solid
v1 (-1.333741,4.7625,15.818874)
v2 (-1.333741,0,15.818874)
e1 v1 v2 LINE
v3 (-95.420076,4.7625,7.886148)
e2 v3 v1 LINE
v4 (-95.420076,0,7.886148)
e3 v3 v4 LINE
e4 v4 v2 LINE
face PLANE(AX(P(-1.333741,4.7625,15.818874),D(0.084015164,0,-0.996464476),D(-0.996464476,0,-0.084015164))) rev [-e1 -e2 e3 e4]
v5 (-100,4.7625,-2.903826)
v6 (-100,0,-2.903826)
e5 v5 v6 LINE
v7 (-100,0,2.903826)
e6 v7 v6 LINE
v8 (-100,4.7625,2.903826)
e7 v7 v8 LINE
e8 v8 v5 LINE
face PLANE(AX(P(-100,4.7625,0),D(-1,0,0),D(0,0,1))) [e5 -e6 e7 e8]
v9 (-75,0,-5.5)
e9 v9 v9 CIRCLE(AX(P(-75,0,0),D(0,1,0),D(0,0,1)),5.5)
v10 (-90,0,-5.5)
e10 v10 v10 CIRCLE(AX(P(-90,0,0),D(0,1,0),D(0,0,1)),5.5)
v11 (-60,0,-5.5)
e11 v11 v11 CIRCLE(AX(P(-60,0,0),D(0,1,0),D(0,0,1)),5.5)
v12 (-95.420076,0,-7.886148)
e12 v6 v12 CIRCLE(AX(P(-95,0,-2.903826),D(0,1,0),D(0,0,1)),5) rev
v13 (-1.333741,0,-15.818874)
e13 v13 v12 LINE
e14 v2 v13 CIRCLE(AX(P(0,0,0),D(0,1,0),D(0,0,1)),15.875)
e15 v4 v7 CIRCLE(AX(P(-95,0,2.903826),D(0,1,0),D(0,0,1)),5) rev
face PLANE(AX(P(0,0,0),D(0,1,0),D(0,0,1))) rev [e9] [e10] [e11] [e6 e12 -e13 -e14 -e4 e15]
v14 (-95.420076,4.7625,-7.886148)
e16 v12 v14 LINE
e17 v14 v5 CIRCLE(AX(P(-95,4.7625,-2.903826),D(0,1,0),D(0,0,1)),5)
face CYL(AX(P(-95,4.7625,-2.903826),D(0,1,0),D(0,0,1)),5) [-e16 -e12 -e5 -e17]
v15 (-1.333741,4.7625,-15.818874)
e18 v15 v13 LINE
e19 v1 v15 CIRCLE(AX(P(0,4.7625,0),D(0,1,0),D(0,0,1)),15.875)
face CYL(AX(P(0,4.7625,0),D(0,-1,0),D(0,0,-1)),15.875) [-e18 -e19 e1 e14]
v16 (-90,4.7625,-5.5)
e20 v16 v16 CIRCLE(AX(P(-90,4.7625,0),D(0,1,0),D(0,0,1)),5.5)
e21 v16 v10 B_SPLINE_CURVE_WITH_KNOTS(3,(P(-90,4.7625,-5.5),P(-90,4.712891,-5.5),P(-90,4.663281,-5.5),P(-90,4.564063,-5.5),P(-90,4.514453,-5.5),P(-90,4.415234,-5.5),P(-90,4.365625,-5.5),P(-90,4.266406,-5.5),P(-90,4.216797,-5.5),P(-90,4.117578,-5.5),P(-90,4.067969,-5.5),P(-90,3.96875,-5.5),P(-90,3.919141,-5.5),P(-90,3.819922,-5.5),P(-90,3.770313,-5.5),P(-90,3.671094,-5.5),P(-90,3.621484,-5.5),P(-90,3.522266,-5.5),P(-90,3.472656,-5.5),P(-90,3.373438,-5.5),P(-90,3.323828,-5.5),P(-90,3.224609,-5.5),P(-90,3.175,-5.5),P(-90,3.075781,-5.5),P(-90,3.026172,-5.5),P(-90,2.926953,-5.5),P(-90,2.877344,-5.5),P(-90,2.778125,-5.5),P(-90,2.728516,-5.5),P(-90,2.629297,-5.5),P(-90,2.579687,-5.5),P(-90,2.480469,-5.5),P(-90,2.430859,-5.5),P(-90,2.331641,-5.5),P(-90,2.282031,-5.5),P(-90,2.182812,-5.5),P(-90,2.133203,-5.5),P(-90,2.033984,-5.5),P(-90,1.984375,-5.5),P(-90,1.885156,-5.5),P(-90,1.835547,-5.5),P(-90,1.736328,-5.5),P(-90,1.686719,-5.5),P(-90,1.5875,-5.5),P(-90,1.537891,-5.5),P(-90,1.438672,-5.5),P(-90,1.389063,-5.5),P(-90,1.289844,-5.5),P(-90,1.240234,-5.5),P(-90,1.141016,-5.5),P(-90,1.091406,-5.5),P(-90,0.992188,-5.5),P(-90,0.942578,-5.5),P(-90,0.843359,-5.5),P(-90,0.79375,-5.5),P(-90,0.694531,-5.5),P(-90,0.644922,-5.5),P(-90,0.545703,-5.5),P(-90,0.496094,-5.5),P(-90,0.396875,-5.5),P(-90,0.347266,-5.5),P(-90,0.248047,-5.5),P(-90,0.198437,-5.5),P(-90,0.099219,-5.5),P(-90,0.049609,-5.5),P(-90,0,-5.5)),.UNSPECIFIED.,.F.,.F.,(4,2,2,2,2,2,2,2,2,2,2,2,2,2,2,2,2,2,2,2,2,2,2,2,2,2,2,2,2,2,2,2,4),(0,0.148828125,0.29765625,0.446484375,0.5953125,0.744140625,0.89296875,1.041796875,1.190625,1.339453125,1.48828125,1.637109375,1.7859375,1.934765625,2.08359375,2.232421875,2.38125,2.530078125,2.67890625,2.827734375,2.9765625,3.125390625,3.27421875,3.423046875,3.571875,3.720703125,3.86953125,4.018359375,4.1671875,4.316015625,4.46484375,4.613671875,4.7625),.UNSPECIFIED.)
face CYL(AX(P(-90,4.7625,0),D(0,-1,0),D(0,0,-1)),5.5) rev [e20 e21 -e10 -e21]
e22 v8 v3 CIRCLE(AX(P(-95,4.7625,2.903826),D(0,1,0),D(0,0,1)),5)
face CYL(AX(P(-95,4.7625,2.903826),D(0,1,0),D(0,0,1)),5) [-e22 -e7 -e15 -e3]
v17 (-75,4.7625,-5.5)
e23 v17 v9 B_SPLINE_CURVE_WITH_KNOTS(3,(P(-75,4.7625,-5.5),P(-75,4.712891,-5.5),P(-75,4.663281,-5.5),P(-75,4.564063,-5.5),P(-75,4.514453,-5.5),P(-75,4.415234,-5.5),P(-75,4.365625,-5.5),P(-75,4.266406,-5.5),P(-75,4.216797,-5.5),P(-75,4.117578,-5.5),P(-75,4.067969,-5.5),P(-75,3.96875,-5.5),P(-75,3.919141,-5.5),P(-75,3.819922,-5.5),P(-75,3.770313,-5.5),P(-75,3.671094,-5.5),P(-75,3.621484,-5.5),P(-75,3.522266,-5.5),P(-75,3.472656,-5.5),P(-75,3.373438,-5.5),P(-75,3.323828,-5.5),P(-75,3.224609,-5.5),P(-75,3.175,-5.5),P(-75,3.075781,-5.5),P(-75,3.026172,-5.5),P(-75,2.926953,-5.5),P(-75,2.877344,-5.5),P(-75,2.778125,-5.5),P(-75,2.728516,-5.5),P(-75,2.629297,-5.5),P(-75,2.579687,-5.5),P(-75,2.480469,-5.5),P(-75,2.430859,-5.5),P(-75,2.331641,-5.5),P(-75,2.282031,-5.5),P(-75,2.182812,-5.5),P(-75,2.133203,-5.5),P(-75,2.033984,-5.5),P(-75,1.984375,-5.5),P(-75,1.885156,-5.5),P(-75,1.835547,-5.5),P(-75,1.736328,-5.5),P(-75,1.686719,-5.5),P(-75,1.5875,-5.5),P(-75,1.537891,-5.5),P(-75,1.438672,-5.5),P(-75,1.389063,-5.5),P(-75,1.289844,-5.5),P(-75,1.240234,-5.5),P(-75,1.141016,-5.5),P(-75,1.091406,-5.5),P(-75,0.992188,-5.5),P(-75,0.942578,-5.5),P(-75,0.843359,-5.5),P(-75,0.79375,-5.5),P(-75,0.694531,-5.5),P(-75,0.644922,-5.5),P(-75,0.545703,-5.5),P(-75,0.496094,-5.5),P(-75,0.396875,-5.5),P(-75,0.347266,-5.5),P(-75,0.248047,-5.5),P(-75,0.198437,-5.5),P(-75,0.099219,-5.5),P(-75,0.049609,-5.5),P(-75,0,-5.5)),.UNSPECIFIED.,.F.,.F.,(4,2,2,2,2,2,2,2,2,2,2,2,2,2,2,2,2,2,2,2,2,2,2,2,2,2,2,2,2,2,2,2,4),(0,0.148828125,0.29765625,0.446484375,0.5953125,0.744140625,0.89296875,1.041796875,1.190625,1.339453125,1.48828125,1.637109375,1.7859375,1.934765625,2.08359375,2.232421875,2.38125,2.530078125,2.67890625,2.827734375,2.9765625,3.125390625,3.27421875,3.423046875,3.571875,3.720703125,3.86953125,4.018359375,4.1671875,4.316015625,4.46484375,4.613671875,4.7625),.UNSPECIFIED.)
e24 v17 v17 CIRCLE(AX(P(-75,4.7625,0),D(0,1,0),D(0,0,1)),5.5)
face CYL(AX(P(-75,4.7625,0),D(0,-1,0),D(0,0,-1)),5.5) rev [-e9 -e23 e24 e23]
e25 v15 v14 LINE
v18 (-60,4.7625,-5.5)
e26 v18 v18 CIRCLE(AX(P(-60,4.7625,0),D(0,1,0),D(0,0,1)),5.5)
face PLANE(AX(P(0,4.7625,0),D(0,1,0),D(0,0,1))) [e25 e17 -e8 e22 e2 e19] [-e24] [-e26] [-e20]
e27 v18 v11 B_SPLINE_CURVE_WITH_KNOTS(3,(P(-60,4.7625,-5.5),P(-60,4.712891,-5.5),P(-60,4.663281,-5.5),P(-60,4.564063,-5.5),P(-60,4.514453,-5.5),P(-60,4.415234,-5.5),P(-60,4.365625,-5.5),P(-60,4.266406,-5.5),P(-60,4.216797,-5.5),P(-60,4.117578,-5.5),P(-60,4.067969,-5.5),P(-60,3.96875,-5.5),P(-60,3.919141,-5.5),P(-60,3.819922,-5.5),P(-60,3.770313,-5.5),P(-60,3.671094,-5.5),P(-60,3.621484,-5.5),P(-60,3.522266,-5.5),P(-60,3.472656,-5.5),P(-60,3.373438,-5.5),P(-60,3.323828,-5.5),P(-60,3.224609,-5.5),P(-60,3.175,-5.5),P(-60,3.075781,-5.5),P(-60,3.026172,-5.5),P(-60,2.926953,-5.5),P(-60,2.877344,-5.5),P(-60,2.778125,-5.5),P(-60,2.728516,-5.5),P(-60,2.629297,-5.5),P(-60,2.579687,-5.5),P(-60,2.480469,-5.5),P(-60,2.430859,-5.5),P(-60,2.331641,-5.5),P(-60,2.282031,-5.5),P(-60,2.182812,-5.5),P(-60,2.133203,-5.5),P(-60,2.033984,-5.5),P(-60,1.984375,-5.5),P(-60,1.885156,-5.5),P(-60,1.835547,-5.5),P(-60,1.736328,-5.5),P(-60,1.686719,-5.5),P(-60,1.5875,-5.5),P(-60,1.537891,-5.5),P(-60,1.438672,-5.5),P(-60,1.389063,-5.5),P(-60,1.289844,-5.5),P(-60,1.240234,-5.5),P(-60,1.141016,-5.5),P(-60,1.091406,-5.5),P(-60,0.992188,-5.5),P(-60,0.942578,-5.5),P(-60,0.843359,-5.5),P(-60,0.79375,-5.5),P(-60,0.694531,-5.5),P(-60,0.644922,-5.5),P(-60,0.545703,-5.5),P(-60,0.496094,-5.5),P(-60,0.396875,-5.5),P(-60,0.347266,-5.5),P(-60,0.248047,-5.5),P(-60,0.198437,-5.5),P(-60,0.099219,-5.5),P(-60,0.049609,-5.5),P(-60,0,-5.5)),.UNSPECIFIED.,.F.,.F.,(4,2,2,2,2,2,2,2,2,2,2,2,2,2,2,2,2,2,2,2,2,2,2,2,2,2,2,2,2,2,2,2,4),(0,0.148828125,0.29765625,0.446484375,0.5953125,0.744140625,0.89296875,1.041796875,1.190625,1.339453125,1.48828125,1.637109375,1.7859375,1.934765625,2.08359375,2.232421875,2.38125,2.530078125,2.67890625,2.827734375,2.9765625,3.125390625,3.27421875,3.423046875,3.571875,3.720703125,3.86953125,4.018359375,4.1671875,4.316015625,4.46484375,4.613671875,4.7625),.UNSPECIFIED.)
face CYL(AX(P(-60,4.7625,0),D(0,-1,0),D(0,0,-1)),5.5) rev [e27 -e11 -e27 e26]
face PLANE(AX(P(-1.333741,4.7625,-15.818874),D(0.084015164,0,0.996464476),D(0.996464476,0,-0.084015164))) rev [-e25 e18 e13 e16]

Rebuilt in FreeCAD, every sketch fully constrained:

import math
import FreeCAD as App
import Part
import Sketcher

V = App.Vector
Q = App.Units.Quantity


def edges_at(feature, points):
    """Names of the edges that pass closest to the given points."""
    edges = feature.Shape.Edges
    near = lambda p: min(range(len(edges)), key=lambda i: edges[i].distToShape(Part.Vertex(*p))[0])
    return sorted({f"Edge{near(p) + 1}" for p in points})

doc = App.newDocument("Part")
body = doc.addObject("PartDesign::Body", "Body")

# Sketch on XZ plane
sketch1 = body.newObject("Sketcher::SketchObject", "Sketch")
sketch1.AttachmentSupport = (doc.getObject("XZ_Plane"), [""])
sketch1.MapMode = "FlatFace"
sketch1.addGeometry([
    Part.LineSegment(V(-100, 7.5, 0), V(-1.33374, 15.818874, 0)),  # 0
    Part.ArcOfCircle(Part.Circle(V(0, 0, 0), V(0, 0, 1), 15.875), math.radians(-94.819395), math.radians(94.819394)),  # 1
    Part.LineSegment(V(-1.333741, -15.818874, 0), V(-100, -7.5, 0)),  # 2
    Part.LineSegment(V(-100, -7.5, 0), V(-100, 7.5, 0)),  # 3
    Part.Circle(V(-90, 0, 0), V(0, 0, 1), 5.5),  # 4
    Part.Circle(V(-75, 0, 0), V(0, 0, 1), 5.5),  # 5
    Part.Circle(V(-60, 0, 0), V(0, 0, 1), 5.5),  # 6
], False)
sketch1.addConstraint([
    Sketcher.Constraint("Tangent", 0, 2, 1, 2),
    Sketcher.Constraint("Tangent", 1, 1, 2, 1),
    Sketcher.Constraint("Coincident", 2, 2, 3, 1),
    Sketcher.Constraint("Coincident", 3, 2, 0, 1),
    Sketcher.Constraint("Vertical", 3),
    Sketcher.Constraint("Coincident", 1, 3, -1, 1),
    Sketcher.Constraint("Equal", 4, 5),
    Sketcher.Constraint("Equal", 5, 6),
    Sketcher.Constraint("PointOnObject", 4, 3, -1),
    Sketcher.Constraint("PointOnObject", 5, 3, -1),
    Sketcher.Constraint("PointOnObject", 6, 3, -1),
    Sketcher.Constraint("Vertical", 0, 2, 1, 1),
    Sketcher.Constraint("Diameter", 4, Q("11 mm")),
    Sketcher.Constraint("DistanceY", 3, 1, 3, 2, Q("15 mm")),
    Sketcher.Constraint("DistanceX", 4, 3, -1, 1, Q("90 mm")),
    Sketcher.Constraint("DistanceX", 5, 3, -1, 1, Q("75 mm")),
    Sketcher.Constraint("DistanceX", 6, 3, -1, 1, Q("60 mm")),
    Sketcher.Constraint("DistanceX", 2, 2, -1, 1, Q("100 mm")),
    Sketcher.Constraint("Radius", 1, Q("15.875 mm")),
])
pad1 = body.newObject("PartDesign::Pad", "Pad")
pad1.Profile = sketch1
pad1.Length = 4.7625
pad1.Reversed = True
doc.recompute()

fillet = body.newObject("PartDesign::Fillet", "Fillet")
fillet.Base = (pad1, edges_at(pad1, [(-100, 2.381, 7.5), (-100, 2.381, -7.5)]))
fillet.Radius = 5

doc.recompute()
